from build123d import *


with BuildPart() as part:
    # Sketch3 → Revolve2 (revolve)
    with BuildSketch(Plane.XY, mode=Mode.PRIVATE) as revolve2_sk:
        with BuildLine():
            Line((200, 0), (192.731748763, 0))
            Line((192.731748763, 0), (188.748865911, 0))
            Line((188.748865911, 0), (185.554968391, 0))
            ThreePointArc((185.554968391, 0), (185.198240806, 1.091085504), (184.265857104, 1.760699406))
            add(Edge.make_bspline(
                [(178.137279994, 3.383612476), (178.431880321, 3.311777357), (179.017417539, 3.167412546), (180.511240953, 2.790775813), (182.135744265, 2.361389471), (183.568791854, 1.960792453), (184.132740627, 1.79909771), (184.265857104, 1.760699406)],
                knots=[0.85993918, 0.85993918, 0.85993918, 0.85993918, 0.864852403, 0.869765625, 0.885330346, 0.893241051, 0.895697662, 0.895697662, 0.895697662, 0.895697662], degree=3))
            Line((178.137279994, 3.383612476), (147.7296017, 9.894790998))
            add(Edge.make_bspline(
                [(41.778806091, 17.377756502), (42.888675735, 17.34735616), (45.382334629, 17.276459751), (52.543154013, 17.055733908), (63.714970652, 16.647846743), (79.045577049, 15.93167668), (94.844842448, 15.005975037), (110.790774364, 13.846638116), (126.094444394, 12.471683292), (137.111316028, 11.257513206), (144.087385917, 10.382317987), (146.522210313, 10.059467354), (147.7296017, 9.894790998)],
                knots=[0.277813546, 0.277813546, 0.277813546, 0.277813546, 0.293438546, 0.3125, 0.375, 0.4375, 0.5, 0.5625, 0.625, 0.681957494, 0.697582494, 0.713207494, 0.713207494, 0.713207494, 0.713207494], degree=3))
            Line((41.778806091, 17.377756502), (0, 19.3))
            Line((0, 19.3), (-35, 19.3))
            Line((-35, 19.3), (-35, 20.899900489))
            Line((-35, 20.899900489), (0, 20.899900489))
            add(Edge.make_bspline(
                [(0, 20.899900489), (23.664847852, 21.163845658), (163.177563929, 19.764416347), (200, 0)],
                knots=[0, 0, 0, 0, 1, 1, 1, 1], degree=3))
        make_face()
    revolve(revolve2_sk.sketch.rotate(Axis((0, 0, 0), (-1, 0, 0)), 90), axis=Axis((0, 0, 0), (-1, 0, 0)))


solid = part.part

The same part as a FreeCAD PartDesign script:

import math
import FreeCAD as App
import Part
import Sketcher

V = App.Vector

doc = App.newDocument("Part")
body = doc.addObject("PartDesign::Body", "Body")

sketch1 = doc.addObject("Sketcher::SketchObject", "Sketch")
body.addObject(sketch1)
sketch1.AttachmentSupport = (doc.XY_Plane, [""])
sketch1.MapMode = "FlatFace"
sketch1.addGeometry(Part.LineSegment(V(185.554968, 0, 0), V(200, 0, 0)), False)
sketch1.addGeometry(Part.BSplineCurve([V(0, 20.8999, 0), V(23.664848, 21.163846, 0), V(163.177564, 19.764416, 0), V(200, 0, 0)], [4, 4], [0, 1], False, 3, [1, 1, 1, 1], False), False)
sketch1.addGeometry(Part.LineSegment(V(0, 20.8999, 0), V(-35, 20.8999, 0)), False)
sketch1.addGeometry(Part.LineSegment(V(-35, 20.8999, 0), V(-35, 19.3, 0)), False)
sketch1.addGeometry(Part.LineSegment(V(-35, 19.3, 0), V(0, 19.3, 0)), False)
sketch1.addGeometry(Part.LineSegment(V(0, 19.3, 0), V(41.778806, 17.377757, 0)), False)
sketch1.addGeometry(Part.BSplineCurve([V(41.778806, 17.377757, 0), V(42.888676, 17.347356, 0), V(45.382335, 17.27646, 0), V(52.543154, 17.055734, 0), V(63.714971, 16.647847, 0), V(79.045577, 15.931677, 0), V(94.844842, 15.005975, 0), V(110.790774, 13.846638, 0), V(126.094444, 12.471683, 0), V(137.111316, 11.257513, 0), V(144.087386, 10.382318, 0), V(146.52221, 10.059467, 0), V(147.729602, 9.894791, 0)], [4, 1, 1, 1, 1, 1, 1, 1, 1, 1, 4], [0.277813546, 0.293438546, 0.3125, 0.375, 0.4375, 0.5, 0.5625, 0.625, 0.681957494, 0.697582494, 0.713207494], False, 3, [1, 1, 1, 1, 1, 1, 1, 1, 1, 1, 1, 1, 1], False), False)
sketch1.addGeometry(Part.LineSegment(V(147.729602, 9.894791, 0), V(178.13728, 3.383612, 0)), False)
sketch1.addGeometry(Part.BSplineCurve([V(178.13728, 3.383612, 0), V(178.43188, 3.311777, 0), V(179.017418, 3.167413, 0), V(180.511241, 2.790776, 0), V(182.135744, 2.361389, 0), V(183.568792, 1.960792, 0), V(184.132741, 1.799098, 0), V(184.265857, 1.760699, 0)], [4, 1, 1, 1, 1, 4], [0.85993918, 0.864852403, 0.869765625, 0.885330346, 0.893241051, 0.895697662], False, 3, [1, 1, 1, 1, 1, 1, 1, 1], False), False)
sketch1.addGeometry(Part.ArcOfCircle(Part.Circle(V(183.70801, 0, 0), V(0, 0, 1), 1.846959), math.radians(0), math.radians(72.420091)), False)
sketch1.addConstraint(Sketcher.Constraint("Block", 1))
sketch1.addConstraint(Sketcher.Constraint("Block", 6))
sketch1.addConstraint(Sketcher.Constraint("Block", 8))
sketch1.addConstraint(Sketcher.Constraint("Coincident", 0, 2, 1, 2))
sketch1.addConstraint(Sketcher.Constraint("Coincident", 1, 1, 2, 1))
sketch1.addConstraint(Sketcher.Constraint("Coincident", 2, 2, 3, 1))
sketch1.addConstraint(Sketcher.Constraint("Coincident", 3, 2, 4, 1))
sketch1.addConstraint(Sketcher.Constraint("Coincident", 4, 2, 5, 1))
sketch1.addConstraint(Sketcher.Constraint("Coincident", 5, 2, 6, 1))
sketch1.addConstraint(Sketcher.Constraint("Coincident", 6, 2, 7, 1))
sketch1.addConstraint(Sketcher.Constraint("Coincident", 7, 2, 8, 1))
sketch1.addConstraint(Sketcher.Constraint("Coincident", 8, 2, 9, 2))
sketch1.addConstraint(Sketcher.Constraint("Coincident", 9, 1, 0, 1))
sketch1.addConstraint(Sketcher.Constraint("Horizontal", 0))
sketch1.addConstraint(Sketcher.Constraint("Horizontal", 2))
sketch1.addConstraint(Sketcher.Constraint("Vertical", 3))
sketch1.addConstraint(Sketcher.Constraint("Horizontal", 4))
sketch1.addConstraint(Sketcher.Constraint("PointOnObject", 9, 3, -1))
sketch1.addConstraint(Sketcher.Constraint("PointOnObject", 4, 2, -2))
sketch1.addConstraint(Sketcher.Constraint("DistanceX", 2, 2, 2, 1, 35.0))
sketch1.addConstraint(Sketcher.Constraint("DistanceY", -1, 1, 3, 2, 19.3))
sketch1.addConstraint(Sketcher.Constraint("Radius", 9, 1.846959))
revolution = doc.addObject("PartDesign::Revolution", "Revolution")
body.addObject(revolution)
revolution.Profile = sketch1
revolution.ReferenceAxis = (sketch1, ["H_Axis"])
revolution.Angle = 360

doc.recompute()
